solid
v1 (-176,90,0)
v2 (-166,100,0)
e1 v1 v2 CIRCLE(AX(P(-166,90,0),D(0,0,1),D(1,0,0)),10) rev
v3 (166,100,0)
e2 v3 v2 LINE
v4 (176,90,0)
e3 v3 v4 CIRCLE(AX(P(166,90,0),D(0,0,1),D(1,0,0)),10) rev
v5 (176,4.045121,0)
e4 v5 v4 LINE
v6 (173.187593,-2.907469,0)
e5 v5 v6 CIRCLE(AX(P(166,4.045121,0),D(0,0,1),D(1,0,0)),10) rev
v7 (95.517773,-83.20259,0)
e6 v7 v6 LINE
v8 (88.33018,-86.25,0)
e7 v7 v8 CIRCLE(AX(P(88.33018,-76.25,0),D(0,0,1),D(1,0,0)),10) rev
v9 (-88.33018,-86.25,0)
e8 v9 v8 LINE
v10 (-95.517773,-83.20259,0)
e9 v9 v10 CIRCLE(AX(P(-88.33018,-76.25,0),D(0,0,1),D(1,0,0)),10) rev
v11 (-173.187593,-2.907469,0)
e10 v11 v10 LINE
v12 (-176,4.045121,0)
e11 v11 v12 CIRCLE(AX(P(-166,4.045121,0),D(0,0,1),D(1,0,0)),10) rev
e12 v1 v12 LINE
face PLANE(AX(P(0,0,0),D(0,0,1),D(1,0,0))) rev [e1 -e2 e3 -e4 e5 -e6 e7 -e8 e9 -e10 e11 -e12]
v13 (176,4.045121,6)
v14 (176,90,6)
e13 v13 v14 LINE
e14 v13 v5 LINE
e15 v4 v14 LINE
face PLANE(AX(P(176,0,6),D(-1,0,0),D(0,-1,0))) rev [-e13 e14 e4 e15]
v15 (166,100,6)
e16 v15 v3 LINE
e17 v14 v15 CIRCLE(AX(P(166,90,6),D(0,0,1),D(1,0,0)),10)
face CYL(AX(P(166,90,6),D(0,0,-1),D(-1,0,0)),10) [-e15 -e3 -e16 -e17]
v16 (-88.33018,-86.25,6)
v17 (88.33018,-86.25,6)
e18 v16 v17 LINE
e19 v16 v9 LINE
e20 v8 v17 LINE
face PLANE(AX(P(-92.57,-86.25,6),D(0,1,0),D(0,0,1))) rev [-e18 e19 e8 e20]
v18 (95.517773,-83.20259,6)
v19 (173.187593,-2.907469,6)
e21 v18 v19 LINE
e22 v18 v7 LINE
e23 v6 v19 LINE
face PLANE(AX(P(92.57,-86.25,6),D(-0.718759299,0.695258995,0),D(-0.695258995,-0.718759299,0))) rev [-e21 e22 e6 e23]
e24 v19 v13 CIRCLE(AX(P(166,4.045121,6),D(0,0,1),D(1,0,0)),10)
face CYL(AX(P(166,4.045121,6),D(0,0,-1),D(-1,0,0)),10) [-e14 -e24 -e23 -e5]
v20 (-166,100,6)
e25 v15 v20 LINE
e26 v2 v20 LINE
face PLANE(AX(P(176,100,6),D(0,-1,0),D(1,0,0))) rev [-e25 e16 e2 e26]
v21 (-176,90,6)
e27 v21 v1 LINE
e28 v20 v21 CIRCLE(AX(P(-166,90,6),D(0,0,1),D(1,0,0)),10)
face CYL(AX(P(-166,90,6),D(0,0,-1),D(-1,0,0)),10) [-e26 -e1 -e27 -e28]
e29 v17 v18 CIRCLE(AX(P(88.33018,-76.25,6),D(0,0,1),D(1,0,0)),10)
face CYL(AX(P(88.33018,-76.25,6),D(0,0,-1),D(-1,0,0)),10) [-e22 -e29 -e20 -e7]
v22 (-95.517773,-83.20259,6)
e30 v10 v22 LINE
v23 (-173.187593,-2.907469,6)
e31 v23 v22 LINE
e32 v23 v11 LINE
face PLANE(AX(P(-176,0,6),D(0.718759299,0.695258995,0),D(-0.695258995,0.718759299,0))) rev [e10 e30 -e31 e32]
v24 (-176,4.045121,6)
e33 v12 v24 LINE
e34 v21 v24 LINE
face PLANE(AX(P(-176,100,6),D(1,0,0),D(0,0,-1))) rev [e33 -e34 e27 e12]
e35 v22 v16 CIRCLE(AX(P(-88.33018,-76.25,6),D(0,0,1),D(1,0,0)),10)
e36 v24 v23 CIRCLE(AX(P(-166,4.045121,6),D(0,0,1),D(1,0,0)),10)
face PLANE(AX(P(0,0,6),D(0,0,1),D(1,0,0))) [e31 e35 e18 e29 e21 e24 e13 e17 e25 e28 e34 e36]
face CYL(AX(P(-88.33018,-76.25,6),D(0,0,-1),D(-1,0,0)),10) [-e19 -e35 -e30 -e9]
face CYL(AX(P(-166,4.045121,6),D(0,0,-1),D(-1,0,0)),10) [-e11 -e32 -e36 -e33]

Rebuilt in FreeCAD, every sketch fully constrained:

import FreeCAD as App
import Part
import Sketcher
from FreeCAD import Vector


def edges_at(feature, points):
    """Names of the edges that pass closest to the given points."""
    edges = feature.Shape.Edges
    near = lambda p: min(range(len(edges)), key=lambda i: edges[i].distToShape(Part.Vertex(*p))[0])
    return sorted({f"Edge{near(p) + 1}" for p in points})


def add_polygon(sketch, points):
    """Adds a closed chain of lines whose ends are joined by coincident constraints."""
    first, n = sketch.GeometryCount, len(points)
    for a, b in zip(points, points[1:] + points[:1]):
        sketch.addGeometry(Part.LineSegment(App.Vector(*a, 0), App.Vector(*b, 0)), False)
    for i in range(n):
        sketch.addConstraint(Sketcher.Constraint("Coincident", first + i, 2, first + (i + 1) % n, 1))

doc = App.newDocument("Part")
body = doc.addObject("PartDesign::Body", "Body")

sketch1 = doc.addObject("Sketcher::SketchObject", "Sketch")
body.addObject(sketch1)
sketch1.AttachmentSupport = (doc.XY_Plane, [""])
sketch1.MapMode = "FlatFace"
add_polygon(sketch1, [(-176, 100), (-176, 0), (-93, -86), (93, -86), (176, 0), (176, 100)])
sketch1.addConstraint(Sketcher.Constraint("Vertical", 0))
sketch1.addConstraint(Sketcher.Constraint("Horizontal", 2))
sketch1.addConstraint(Sketcher.Constraint("Vertical", 4))
sketch1.addConstraint(Sketcher.Constraint("Horizontal", 5))
sketch1.addConstraint(Sketcher.Constraint("Symmetric", 0, 2, 3, 2, -1, 1))
sketch1.addConstraint(Sketcher.Constraint("PointOnObject", 0, 2, -1))
sketch1.addConstraint(Sketcher.Constraint("Equal", 1, 3))
sketch1.addConstraint(Sketcher.Constraint("DistanceX", 5, 2, 5, 1, 352.0))
sketch1.addConstraint(Sketcher.Constraint("DistanceY", 0, 2, 0, 1, 100.0))
sketch1.addConstraint(Sketcher.Constraint("DistanceX", 2, 1, 2, 2, 185.14))
sketch1.addConstraint(Sketcher.Constraint("DistanceY", 1, 2, -1, 1, 86.25))
pad1 = doc.addObject("PartDesign::Pad", "Pad")
body.addObject(pad1)
pad1.Profile = sketch1
pad1.Length = 6
doc.recompute()

fillet = doc.addObject("PartDesign::Fillet", "Fillet")
body.addObject(fillet)
fillet.Base = (pad1, edges_at(pad1, [
    (176, 100, 3),
    (176, 0, 3),
    (92.57, -86.25, 3),
    (-92.57, -86.25, 3),
    (-176, 0, 3),
    (-176, 100, 3),
]))
fillet.Radius = 10

doc.recompute()
